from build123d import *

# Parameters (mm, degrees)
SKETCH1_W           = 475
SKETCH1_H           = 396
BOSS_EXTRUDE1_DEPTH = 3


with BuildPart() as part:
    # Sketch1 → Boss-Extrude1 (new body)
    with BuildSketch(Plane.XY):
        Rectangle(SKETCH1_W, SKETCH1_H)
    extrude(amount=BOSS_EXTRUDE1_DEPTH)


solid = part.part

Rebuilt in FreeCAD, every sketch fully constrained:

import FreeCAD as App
import Part
import Sketcher

V = App.Vector
Q = App.Units.Quantity


def add_polygon(sketch, points):
    """Adds a closed chain of lines whose ends are joined by coincident constraints."""
    first, n = sketch.GeometryCount, len(points)
    for a, b in zip(points, points[1:] + points[:1]):
        sketch.addGeometry(Part.LineSegment(App.Vector(*a, 0), App.Vector(*b, 0)), False)
    for i in range(n):
        sketch.addConstraint(Sketcher.Constraint("Coincident", first + i, 2, first + (i + 1) % n, 1))

doc = App.newDocument("Part")
params = doc.addObject("Spreadsheet::Sheet", "Params")
for row, (alias, value) in enumerate([
    ("sketch1_width", "475 mm"),
    ("sketch1_height", "396 mm"),
    ("pad1_length", "3 mm"),
], start=1):
    params.set(f"A{row}", alias)
    params.set(f"B{row}", "=" + value)
    params.setAlias(f"B{row}", alias)

body = doc.addObject("PartDesign::Body", "Body")

# Sketch on XY plane
sketch1 = body.newObject("Sketcher::SketchObject", "Sketch")
sketch1.AttachmentSupport = (doc.getObject("XY_Plane"), [""])
sketch1.MapMode = "FlatFace"
add_polygon(sketch1, [(-238, 198), (-238, -198), (238, -198), (238, 198)])  # lines 0-3
sketch1.addConstraint([
    Sketcher.Constraint("Vertical", 0),
    Sketcher.Constraint("Horizontal", 1),
    Sketcher.Constraint("Vertical", 2),
    Sketcher.Constraint("Horizontal", 3),
    Sketcher.Constraint("Symmetric", 0, 2, 2, 2, -1, 1),
    Sketcher.Constraint("DistanceX", 1, 1, 1, 2, Q("475 mm")),
    Sketcher.Constraint("DistanceY", 0, 2, 0, 1, Q("396 mm")),
])
sketch1.setExpression("Constraints[9]", "Params.sketch1_width")
sketch1.setExpression("Constraints[10]", "Params.sketch1_height")
pad1 = body.newObject("PartDesign::Pad", "Pad")
pad1.Profile = sketch1
pad1.setExpression("Length", "Params.pad1_length")

doc.recompute()
